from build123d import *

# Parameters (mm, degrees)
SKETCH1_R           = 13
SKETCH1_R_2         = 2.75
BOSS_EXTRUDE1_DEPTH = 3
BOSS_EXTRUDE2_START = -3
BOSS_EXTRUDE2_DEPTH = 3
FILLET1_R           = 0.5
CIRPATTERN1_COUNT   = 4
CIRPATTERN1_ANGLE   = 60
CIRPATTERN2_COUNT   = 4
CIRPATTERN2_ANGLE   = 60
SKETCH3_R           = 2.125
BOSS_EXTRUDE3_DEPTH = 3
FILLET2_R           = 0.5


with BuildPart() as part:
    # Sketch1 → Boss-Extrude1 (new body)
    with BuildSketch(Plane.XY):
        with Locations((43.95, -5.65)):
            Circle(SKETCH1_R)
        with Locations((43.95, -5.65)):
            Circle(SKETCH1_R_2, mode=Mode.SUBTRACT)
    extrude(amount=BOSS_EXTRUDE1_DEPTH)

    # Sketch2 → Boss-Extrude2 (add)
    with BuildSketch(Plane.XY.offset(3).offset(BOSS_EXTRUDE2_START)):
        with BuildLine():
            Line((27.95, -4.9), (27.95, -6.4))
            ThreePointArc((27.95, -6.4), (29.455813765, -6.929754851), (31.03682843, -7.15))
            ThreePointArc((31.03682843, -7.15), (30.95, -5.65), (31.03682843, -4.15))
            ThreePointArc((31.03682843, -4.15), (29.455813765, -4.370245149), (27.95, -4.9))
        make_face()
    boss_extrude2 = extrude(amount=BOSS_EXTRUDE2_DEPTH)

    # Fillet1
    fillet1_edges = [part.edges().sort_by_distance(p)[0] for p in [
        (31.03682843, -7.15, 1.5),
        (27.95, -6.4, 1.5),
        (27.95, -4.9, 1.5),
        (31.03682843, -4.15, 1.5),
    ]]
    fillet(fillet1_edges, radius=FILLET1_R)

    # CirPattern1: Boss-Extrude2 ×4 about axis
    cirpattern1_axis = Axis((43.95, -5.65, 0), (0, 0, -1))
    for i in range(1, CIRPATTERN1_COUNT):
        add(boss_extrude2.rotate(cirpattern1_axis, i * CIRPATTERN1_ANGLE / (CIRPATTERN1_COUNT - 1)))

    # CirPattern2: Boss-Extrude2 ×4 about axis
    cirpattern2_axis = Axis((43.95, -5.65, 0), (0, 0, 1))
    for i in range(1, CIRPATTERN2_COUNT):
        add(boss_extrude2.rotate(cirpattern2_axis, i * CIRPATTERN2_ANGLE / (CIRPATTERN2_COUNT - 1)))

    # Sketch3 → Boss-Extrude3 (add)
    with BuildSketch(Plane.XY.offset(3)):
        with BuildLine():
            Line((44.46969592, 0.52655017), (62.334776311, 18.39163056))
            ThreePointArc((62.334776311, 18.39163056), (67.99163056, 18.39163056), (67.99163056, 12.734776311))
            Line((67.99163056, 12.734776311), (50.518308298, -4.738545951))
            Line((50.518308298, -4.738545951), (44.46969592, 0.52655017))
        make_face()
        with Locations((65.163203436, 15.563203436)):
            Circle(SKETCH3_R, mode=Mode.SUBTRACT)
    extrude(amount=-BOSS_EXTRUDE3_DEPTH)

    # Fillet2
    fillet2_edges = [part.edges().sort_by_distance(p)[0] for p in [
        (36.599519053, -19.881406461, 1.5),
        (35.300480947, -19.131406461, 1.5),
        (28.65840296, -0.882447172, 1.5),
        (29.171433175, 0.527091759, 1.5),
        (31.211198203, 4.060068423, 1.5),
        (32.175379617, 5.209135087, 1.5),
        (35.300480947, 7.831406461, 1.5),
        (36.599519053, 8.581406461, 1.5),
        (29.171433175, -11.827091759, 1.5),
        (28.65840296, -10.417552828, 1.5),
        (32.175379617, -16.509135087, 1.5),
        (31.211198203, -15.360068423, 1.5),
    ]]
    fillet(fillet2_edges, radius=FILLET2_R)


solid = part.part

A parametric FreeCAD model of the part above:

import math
import FreeCAD as App
import Part
import Sketcher
Q = App.Units.Quantity


def edges_at(feature, points):
    """Names of the edges that pass closest to the given points."""
    edges = feature.Shape.Edges
    near = lambda p: min(range(len(edges)), key=lambda i: edges[i].distToShape(Part.Vertex(*p))[0])
    return sorted({f"Edge{near(p) + 1}" for p in points})

doc = App.newDocument("Part")
params = doc.addObject("Spreadsheet::Sheet", "Params")
for row, (alias, value) in enumerate([
    ("sketch1_diameter", "26 mm"),
    ("sketch1_diameter2", "5.5 mm"),
    ("pad1_length", "3 mm"),
    ("sketch2_radius", "8 mm"),
    ("sketch2_radius2", "13 mm"),
    ("sketch2_height", "1.5 mm"),
    ("pad2_length", "3 mm"),
    ("fillet_radius", "0.5 mm"),
    ("sketch3_radius", "4 mm"),
    ("sketch3_diameter", "4.25 mm"),
    ("pad3_length", "3 mm"),
    ("fillet2_radius", "0.5 mm"),
], start=1):
    params.set(f"A{row}", alias)
    params.set(f"B{row}", "=" + value)
    params.setAlias(f"B{row}", alias)

body = doc.addObject("PartDesign::Body", "Body")

# Sketch on XY plane
sketch1 = body.newObject("Sketcher::SketchObject", "Sketch")
sketch1.AttachmentSupport = (doc.getObject("XY_Plane"), [""])
sketch1.MapMode = "FlatFace"
sketch1.addGeometry([
    Part.Circle(App.Vector(44, -5.7, 0), App.Vector(0, 0, 1), 13),
    Part.Circle(App.Vector(44, -5.7, 0), App.Vector(0, 0, 1), 2.8),
], False)
sketch1.addConstraint([
    Sketcher.Constraint("Coincident", 1, 3, 0, 3),
    Sketcher.Constraint("Diameter", 0, Q("26 mm")),
    Sketcher.Constraint("Diameter", 1, Q("5.5 mm")),
    Sketcher.Constraint("DistanceX", -1, 1, 0, 3, Q("43.95 mm")),
    Sketcher.Constraint("DistanceY", 0, 3, -1, 1, Q("5.65 mm")),
])
sketch1.setExpression("Constraints[1]", "Params.sketch1_diameter")
sketch1.setExpression("Constraints[2]", "Params.sketch1_diameter2")
pad1 = body.newObject("PartDesign::Pad", "Pad")
pad1.Profile = sketch1
pad1.setExpression("Length", "Params.pad1_length")

# Sketch on XY plane
sketch2 = body.newObject("Sketcher::SketchObject", "Sketch001")
sketch2.AttachmentSupport = (doc.getObject("XY_Plane"), [""])
sketch2.MapMode = "FlatFace"
sketch2.addGeometry([
    Part.LineSegment(App.Vector(27.9, -4.9, 0), App.Vector(27.9, -6.4, 0)),
    Part.ArcOfCircle(Part.Circle(App.Vector(31.3, 0.8, 0), App.Vector(0, 0, 1), 8), math.radians(-115), math.radians(-92)),
    Part.ArcOfCircle(Part.Circle(App.Vector(43.9, -5.7, 0), App.Vector(0, 0, 1), 13), math.radians(173.37), math.radians(186.63)),
    Part.ArcOfCircle(Part.Circle(App.Vector(31.3, -12.1, 0), App.Vector(0, 0, 1), 8), math.radians(92), math.radians(115)),
], False)
sketch2.addConstraint([
    Sketcher.Constraint("Coincident", 0, 2, 1, 1),
    Sketcher.Constraint("Coincident", 1, 2, 2, 2),
    Sketcher.Constraint("Coincident", 2, 1, 3, 1),
    Sketcher.Constraint("Coincident", 3, 2, 0, 1),
    Sketcher.Constraint("Vertical", 0),
    Sketcher.Constraint("Equal", 1, 3),
    Sketcher.Constraint("Vertical", 1, 3, 3, 3),
    Sketcher.Constraint("Vertical", 1, 2, 2, 1),
    Sketcher.Constraint("Radius", 1, Q("8 mm")),
    Sketcher.Constraint("Radius", 2, Q("13 mm")),
    Sketcher.Constraint("DistanceY", 0, 2, 0, 1, Q("1.5 mm")),
    Sketcher.Constraint("DistanceX", 0, 2, 2, 3, Q("16 mm")),
    Sketcher.Constraint("DistanceY", 1, 2, 2, 1, Q("3 mm")),
    Sketcher.Constraint("DistanceY", 0, 2, -1, 1, Q("6.4 mm")),
    Sketcher.Constraint("DistanceX", -1, 1, 2, 3, Q("43.95 mm")),
])
sketch2.setExpression("Constraints[8]", "Params.sketch2_radius")
sketch2.setExpression("Constraints[9]", "Params.sketch2_radius2")
sketch2.setExpression("Constraints[10]", "Params.sketch2_height")
pad2 = body.newObject("PartDesign::Pad", "Pad001")
pad2.Profile = sketch2
pad2.setExpression("Length", "Params.pad2_length")
doc.recompute()

fillet = body.newObject("PartDesign::Fillet", "Fillet")
fillet.Base = (pad2, edges_at(pad2, [
    (31.037, -7.15, 1.5),
    (27.95, -6.4, 1.5),
    (27.95, -4.9, 1.5),
    (31.037, -4.15, 1.5),
]))
fillet.setExpression("Radius", "Params.fillet_radius")
doc.recompute()

datumline = body.newObject("PartDesign::Line", "DatumLine")
datumline.Placement = App.Placement(App.Vector(43.95, -5.65, 0), App.Rotation(App.Vector(0, 0, 1), App.Vector(0, 0, -1)))
polarpattern = body.newObject("PartDesign::PolarPattern", "PolarPattern")
polarpattern.Originals = [pad2]
polarpattern.Axis = (datumline, [""])
polarpattern.Angle = 60
polarpattern.Occurrences = 4
body.Tip = polarpattern
doc.recompute()

datumline2 = body.newObject("PartDesign::Line", "DatumLine001")
datumline2.Placement = App.Placement(App.Vector(43.95, -5.65, 0), App.Rotation(App.Vector(0, 0, 1), App.Vector(0, 0, 1)))
polarpattern2 = body.newObject("PartDesign::PolarPattern", "PolarPattern001")
polarpattern2.Originals = [pad2]
polarpattern2.Axis = (datumline2, [""])
polarpattern2.Angle = 60
polarpattern2.Occurrences = 4
body.Tip = polarpattern2

# Sketch on XY plane
sketch3 = body.newObject("Sketcher::SketchObject", "Sketch002")
sketch3.AttachmentSupport = (doc.getObject("XY_Plane"), [""])
sketch3.MapMode = "FlatFace"
sketch3.AttachmentOffset = App.Placement(App.Vector(0, 0, 3), App.Rotation())
sketch3.addGeometry([
    Part.LineSegment(App.Vector(62.3, 18.4, 0), App.Vector(44.5, 0.5, 0)),  # 0
    Part.LineSegment(App.Vector(44.5, 0.5, 0), App.Vector(50.5, -4.7, 0)),  # 1
    Part.LineSegment(App.Vector(50.5, -4.7, 0), App.Vector(68, 12.7, 0)),  # 2
    Part.ArcOfCircle(Part.Circle(App.Vector(65.2, 15.6, 0), App.Vector(0, 0, 1), 4), math.radians(-45), math.radians(135)),  # 3
    Part.Circle(App.Vector(65.2, 15.6, 0), App.Vector(0, 0, 1), 2.1),  # 4
], False)
sketch3.addConstraint([
    Sketcher.Constraint("Coincident", 0, 2, 1, 1),
    Sketcher.Constraint("Coincident", 1, 2, 2, 1),
    Sketcher.Constraint("Tangent", 2, 2, 3, 1),
    Sketcher.Constraint("Tangent", 3, 2, 0, 1),
    Sketcher.Constraint("Coincident", 4, 3, 3, 3),
    Sketcher.Constraint("Parallel", 0, 2),
    Sketcher.Constraint("Radius", 3, Q("4 mm")),
    Sketcher.Constraint("Diameter", 4, Q("4.25 mm")),
    Sketcher.Constraint("Angle", 0, Q("-135 deg")),
    Sketcher.Constraint("Distance", 0, Q("25.265039 mm")),
    Sketcher.Constraint("Distance", 1, Q("8.019161 mm")),
    Sketcher.Constraint("DistanceY", -1, 1, 0, 2, Q("0.52655 mm")),
    Sketcher.Constraint("DistanceX", -1, 1, 1, 2, Q("50.518308 mm")),
])
sketch3.setExpression("Constraints[6]", "Params.sketch3_radius")
sketch3.setExpression("Constraints[7]", "Params.sketch3_diameter")
pad3 = body.newObject("PartDesign::Pad", "Pad002")
pad3.Profile = sketch3
pad3.setExpression("Length", "Params.pad3_length")
pad3.Reversed = True
doc.recompute()

fillet2 = body.newObject("PartDesign::Fillet", "Fillet001")
fillet2.Base = (pad3, edges_at(pad3, [
    (36.6, -19.881, 1.5),
    (35.3, -19.131, 1.5),
    (28.658, -0.882, 1.5),
    (29.171, 0.527, 1.5),
    (31.211, 4.06, 1.5),
    (32.175, 5.209, 1.5),
    (35.3, 7.831, 1.5),
    (36.6, 8.581, 1.5),
    (29.171, -11.827, 1.5),
    (28.658, -10.418, 1.5),
    (32.175, -16.509, 1.5),
    (31.211, -15.36, 1.5),
]))
fillet2.setExpression("Radius", "Params.fillet2_radius")

doc.recompute()
